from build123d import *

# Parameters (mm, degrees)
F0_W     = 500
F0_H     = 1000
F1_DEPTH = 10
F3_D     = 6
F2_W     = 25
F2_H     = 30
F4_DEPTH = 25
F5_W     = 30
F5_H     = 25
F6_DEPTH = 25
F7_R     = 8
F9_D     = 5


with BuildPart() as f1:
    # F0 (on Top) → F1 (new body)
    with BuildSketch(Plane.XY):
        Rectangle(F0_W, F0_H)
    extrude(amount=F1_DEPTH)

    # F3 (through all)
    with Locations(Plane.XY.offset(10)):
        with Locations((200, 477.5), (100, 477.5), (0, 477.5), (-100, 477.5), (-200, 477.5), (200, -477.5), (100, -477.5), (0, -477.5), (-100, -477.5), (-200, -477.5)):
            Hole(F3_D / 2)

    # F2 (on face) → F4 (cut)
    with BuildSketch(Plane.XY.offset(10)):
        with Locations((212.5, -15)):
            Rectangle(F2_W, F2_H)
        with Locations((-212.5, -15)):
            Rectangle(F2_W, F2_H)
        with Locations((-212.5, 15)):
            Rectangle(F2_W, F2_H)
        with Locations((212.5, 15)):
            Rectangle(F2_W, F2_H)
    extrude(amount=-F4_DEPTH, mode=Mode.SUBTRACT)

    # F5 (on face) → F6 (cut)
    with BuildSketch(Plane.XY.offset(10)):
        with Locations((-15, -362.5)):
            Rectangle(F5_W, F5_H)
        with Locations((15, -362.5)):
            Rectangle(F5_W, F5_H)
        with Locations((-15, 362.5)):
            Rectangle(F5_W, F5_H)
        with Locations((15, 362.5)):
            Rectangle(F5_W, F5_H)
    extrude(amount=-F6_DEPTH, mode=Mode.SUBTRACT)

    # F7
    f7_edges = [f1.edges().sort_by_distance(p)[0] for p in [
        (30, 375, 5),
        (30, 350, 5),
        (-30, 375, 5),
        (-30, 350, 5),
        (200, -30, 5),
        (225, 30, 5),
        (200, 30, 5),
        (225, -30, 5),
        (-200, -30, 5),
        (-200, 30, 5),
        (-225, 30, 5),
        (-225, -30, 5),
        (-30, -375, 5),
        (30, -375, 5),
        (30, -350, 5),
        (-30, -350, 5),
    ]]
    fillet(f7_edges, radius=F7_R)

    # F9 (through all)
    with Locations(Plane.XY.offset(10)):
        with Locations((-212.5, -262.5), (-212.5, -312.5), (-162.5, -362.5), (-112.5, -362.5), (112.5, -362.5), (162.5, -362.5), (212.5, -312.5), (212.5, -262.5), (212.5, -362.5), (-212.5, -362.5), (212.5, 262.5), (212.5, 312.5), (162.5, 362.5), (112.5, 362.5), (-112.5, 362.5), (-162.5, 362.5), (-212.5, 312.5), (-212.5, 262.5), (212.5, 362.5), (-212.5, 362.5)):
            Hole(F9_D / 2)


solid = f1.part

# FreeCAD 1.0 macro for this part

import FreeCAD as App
import Part
import Sketcher


def edges_at(feature, points):
    """Names of the edges that pass closest to the given points."""
    edges = feature.Shape.Edges
    near = lambda p: min(range(len(edges)), key=lambda i: edges[i].distToShape(Part.Vertex(*p))[0])
    return sorted({f"Edge{near(p) + 1}" for p in points})


def add_polygon(sketch, points):
    """Adds a closed chain of lines whose ends are joined by coincident constraints."""
    first, n = sketch.GeometryCount, len(points)
    for a, b in zip(points, points[1:] + points[:1]):
        sketch.addGeometry(Part.LineSegment(App.Vector(*a, 0), App.Vector(*b, 0)), False)
    for i in range(n):
        sketch.addConstraint(Sketcher.Constraint("Coincident", first + i, 2, first + (i + 1) % n, 1))

doc = App.newDocument("Part")
body = doc.addObject("PartDesign::Body", "Body")

sketch1 = body.newObject("Sketcher::SketchObject", "Sketch")
sketch1.AttachmentSupport = (doc.getObject("XY_Plane"), [""])
sketch1.MapMode = "FlatFace"
add_polygon(sketch1, [(-250, 500), (-250, -500), (250, -500), (250, 500)])
sketch1.addConstraint(Sketcher.Constraint("Vertical", 0))
sketch1.addConstraint(Sketcher.Constraint("Horizontal", 1))
sketch1.addConstraint(Sketcher.Constraint("Vertical", 2))
sketch1.addConstraint(Sketcher.Constraint("Horizontal", 3))
sketch1.addConstraint(Sketcher.Constraint("Symmetric", 0, 2, 2, 2, -1, 1))
sketch1.addConstraint(Sketcher.Constraint("DistanceX", 1, 1, 1, 2, 500.0))
sketch1.addConstraint(Sketcher.Constraint("DistanceY", 0, 2, 0, 1, 1000.0))
pad1 = body.newObject("PartDesign::Pad", "Pad")
pad1.Profile = sketch1
pad1.Length = 10

sketch2 = body.newObject("Sketcher::SketchObject", "Sketch001")
sketch2.AttachmentSupport = (doc.getObject("XY_Plane"), [""])
sketch2.MapMode = "FlatFace"
sketch2.AttachmentOffset = App.Placement(App.Vector(0, 0, 10), App.Rotation())
sketch2.addGeometry(Part.Circle(App.Vector(200, 477.5, 0), App.Vector(0, 0, 1), 3), False)
sketch2.addGeometry(Part.Circle(App.Vector(100, 477.5, 0), App.Vector(0, 0, 1), 3), False)
sketch2.addGeometry(Part.Circle(App.Vector(0, 477.5, 0), App.Vector(0, 0, 1), 3), False)
sketch2.addGeometry(Part.Circle(App.Vector(-100, 477.5, 0), App.Vector(0, 0, 1), 3), False)
sketch2.addGeometry(Part.Circle(App.Vector(-200, 477.5, 0), App.Vector(0, 0, 1), 3), False)
sketch2.addGeometry(Part.Circle(App.Vector(200, -477.5, 0), App.Vector(0, 0, 1), 3), False)
sketch2.addGeometry(Part.Circle(App.Vector(100, -477.5, 0), App.Vector(0, 0, 1), 3), False)
sketch2.addGeometry(Part.Circle(App.Vector(0, -477.5, 0), App.Vector(0, 0, 1), 3), False)
sketch2.addGeometry(Part.Circle(App.Vector(-100, -477.5, 0), App.Vector(0, 0, 1), 3), False)
sketch2.addGeometry(Part.Circle(App.Vector(-200, -477.5, 0), App.Vector(0, 0, 1), 3), False)
sketch2.addConstraint(Sketcher.Constraint("Equal", 0, 1))
sketch2.addConstraint(Sketcher.Constraint("Equal", 1, 2))
sketch2.addConstraint(Sketcher.Constraint("Equal", 2, 3))
sketch2.addConstraint(Sketcher.Constraint("Equal", 3, 4))
sketch2.addConstraint(Sketcher.Constraint("Equal", 4, 5))
sketch2.addConstraint(Sketcher.Constraint("Equal", 5, 6))
sketch2.addConstraint(Sketcher.Constraint("Equal", 6, 7))
sketch2.addConstraint(Sketcher.Constraint("Equal", 7, 8))
sketch2.addConstraint(Sketcher.Constraint("Equal", 8, 9))
sketch2.addConstraint(Sketcher.Constraint("Symmetric", 4, 3, 5, 3, -1, 1))
sketch2.addConstraint(Sketcher.Constraint("Symmetric", 3, 3, 6, 3, -1, 1))
sketch2.addConstraint(Sketcher.Constraint("Symmetric", 2, 3, 7, 3, -1, 1))
sketch2.addConstraint(Sketcher.Constraint("Symmetric", 1, 3, 8, 3, -1, 1))
sketch2.addConstraint(Sketcher.Constraint("Symmetric", 0, 3, 9, 3, -1, 1))
sketch2.addConstraint(Sketcher.Constraint("Symmetric", 1, 3, 3, 3, -2))
sketch2.addConstraint(Sketcher.Constraint("Symmetric", 0, 3, 4, 3, -2))
sketch2.addConstraint(Sketcher.Constraint("PointOnObject", 2, 3, -2))
sketch2.addConstraint(Sketcher.Constraint("Horizontal", 0, 3, 1, 3))
sketch2.addConstraint(Sketcher.Constraint("Horizontal", 1, 3, 2, 3))
sketch2.addConstraint(Sketcher.Constraint("Diameter", 0, 6.0))
sketch2.addConstraint(Sketcher.Constraint("DistanceX", -1, 1, 0, 3, 200.0))
sketch2.addConstraint(Sketcher.Constraint("DistanceX", -1, 1, 1, 3, 100.0))
sketch2.addConstraint(Sketcher.Constraint("DistanceY", 5, 3, 0, 3, 955.0))
doc.recompute()
hole = body.newObject("PartDesign::Hole", "Hole")
hole.Profile = sketch2
hole.ThreadType = "None"
hole.Diameter = 6
hole.DepthType = "ThroughAll"

sketch3 = body.newObject("Sketcher::SketchObject", "Sketch002")
sketch3.AttachmentSupport = (doc.getObject("XY_Plane"), [""])
sketch3.MapMode = "FlatFace"
sketch3.AttachmentOffset = App.Placement(App.Vector(0, 0, 10), App.Rotation())
add_polygon(sketch3, [(200, -30), (225, -30), (225, 30), (200, 30)])
add_polygon(sketch3, [(-225, -30), (-200, -30), (-200, 30), (-225, 30)])
sketch3.addConstraint(Sketcher.Constraint("Horizontal", 0))
sketch3.addConstraint(Sketcher.Constraint("Vertical", 1))
sketch3.addConstraint(Sketcher.Constraint("Horizontal", 2))
sketch3.addConstraint(Sketcher.Constraint("Vertical", 3))
sketch3.addConstraint(Sketcher.Constraint("Horizontal", 4))
sketch3.addConstraint(Sketcher.Constraint("Vertical", 5))
sketch3.addConstraint(Sketcher.Constraint("Horizontal", 6))
sketch3.addConstraint(Sketcher.Constraint("Vertical", 7))
sketch3.addConstraint(Sketcher.Constraint("Symmetric", 2, 2, 4, 2, -1, 1))
sketch3.addConstraint(Sketcher.Constraint("Symmetric", 0, 2, 6, 2, -1, 1))
sketch3.addConstraint(Sketcher.Constraint("Horizontal", 3, 2, 4, 2))
sketch3.addConstraint(Sketcher.Constraint("DistanceX", 0, 1, 0, 2, 25.0))
sketch3.addConstraint(Sketcher.Constraint("DistanceY", 1, 1, 1, 2, 60.0))
sketch3.addConstraint(Sketcher.Constraint("DistanceX", -1, 1, 0, 2, 225.0))
pocket1 = body.newObject("PartDesign::Pocket", "Pocket")
pocket1.Profile = sketch3
pocket1.Length = 25

sketch4 = body.newObject("Sketcher::SketchObject", "Sketch003")
sketch4.AttachmentSupport = (doc.getObject("XY_Plane"), [""])
sketch4.MapMode = "FlatFace"
sketch4.AttachmentOffset = App.Placement(App.Vector(0, 0, 10), App.Rotation())
add_polygon(sketch4, [(-30, -350), (-30, -375), (30, -375), (30, -350)])
add_polygon(sketch4, [(-30, 375), (-30, 350), (30, 350), (30, 375)])
sketch4.addConstraint(Sketcher.Constraint("Vertical", 0))
sketch4.addConstraint(Sketcher.Constraint("Horizontal", 1))
sketch4.addConstraint(Sketcher.Constraint("Vertical", 2))
sketch4.addConstraint(Sketcher.Constraint("Horizontal", 3))
sketch4.addConstraint(Sketcher.Constraint("Vertical", 4))
sketch4.addConstraint(Sketcher.Constraint("Horizontal", 5))
sketch4.addConstraint(Sketcher.Constraint("Vertical", 6))
sketch4.addConstraint(Sketcher.Constraint("Horizontal", 7))
sketch4.addConstraint(Sketcher.Constraint("Symmetric", 2, 2, 4, 2, -1, 1))
sketch4.addConstraint(Sketcher.Constraint("Symmetric", 0, 2, 6, 2, -1, 1))
sketch4.addConstraint(Sketcher.Constraint("Vertical", 3, 2, 4, 2))
sketch4.addConstraint(Sketcher.Constraint("DistanceX", 1, 1, 1, 2, 60.0))
sketch4.addConstraint(Sketcher.Constraint("DistanceY", 0, 2, 0, 1, 25.0))
sketch4.addConstraint(Sketcher.Constraint("DistanceY", 0, 2, -1, 1, 375.0))
pocket2 = body.newObject("PartDesign::Pocket", "Pocket001")
pocket2.Profile = sketch4
pocket2.Length = 25
doc.recompute()

fillet = body.newObject("PartDesign::Fillet", "Fillet")
fillet.Base = (pocket2, edges_at(pocket2, [
    (30, 375, 5),
    (30, 350, 5),
    (-30, 375, 5),
    (-30, 350, 5),
    (200, -30, 5),
    (225, 30, 5),
    (200, 30, 5),
    (225, -30, 5),
    (-200, -30, 5),
    (-200, 30, 5),
    (-225, 30, 5),
    (-225, -30, 5),
    (-30, -375, 5),
    (30, -375, 5),
    (30, -350, 5),
    (-30, -350, 5),
]))
fillet.Radius = 8

sketch5 = body.newObject("Sketcher::SketchObject", "Sketch004")
sketch5.AttachmentSupport = (doc.getObject("XY_Plane"), [""])
sketch5.MapMode = "FlatFace"
sketch5.AttachmentOffset = App.Placement(App.Vector(0, 0, 10), App.Rotation())
sketch5.addGeometry(Part.Circle(App.Vector(-212.5, -262.5, 0), App.Vector(0, 0, 1), 2.5), False)
sketch5.addGeometry(Part.Circle(App.Vector(-212.5, -312.5, 0), App.Vector(0, 0, 1), 2.5), False)
sketch5.addGeometry(Part.Circle(App.Vector(-162.5, -362.5, 0), App.Vector(0, 0, 1), 2.5), False)
sketch5.addGeometry(Part.Circle(App.Vector(-112.5, -362.5, 0), App.Vector(0, 0, 1), 2.5), False)
sketch5.addGeometry(Part.Circle(App.Vector(112.5, -362.5, 0), App.Vector(0, 0, 1), 2.5), False)
sketch5.addGeometry(Part.Circle(App.Vector(162.5, -362.5, 0), App.Vector(0, 0, 1), 2.5), False)
sketch5.addGeometry(Part.Circle(App.Vector(212.5, -312.5, 0), App.Vector(0, 0, 1), 2.5), False)
sketch5.addGeometry(Part.Circle(App.Vector(212.5, -262.5, 0), App.Vector(0, 0, 1), 2.5), False)
sketch5.addGeometry(Part.Circle(App.Vector(212.5, -362.5, 0), App.Vector(0, 0, 1), 2.5), False)
sketch5.addGeometry(Part.Circle(App.Vector(-212.5, -362.5, 0), App.Vector(0, 0, 1), 2.5), False)
sketch5.addGeometry(Part.Circle(App.Vector(212.5, 262.5, 0), App.Vector(0, 0, 1), 2.5), False)
sketch5.addGeometry(Part.Circle(App.Vector(212.5, 312.5, 0), App.Vector(0, 0, 1), 2.5), False)
sketch5.addGeometry(Part.Circle(App.Vector(162.5, 362.5, 0), App.Vector(0, 0, 1), 2.5), False)
sketch5.addGeometry(Part.Circle(App.Vector(112.5, 362.5, 0), App.Vector(0, 0, 1), 2.5), False)
sketch5.addGeometry(Part.Circle(App.Vector(-112.5, 362.5, 0), App.Vector(0, 0, 1), 2.5), False)
sketch5.addGeometry(Part.Circle(App.Vector(-162.5, 362.5, 0), App.Vector(0, 0, 1), 2.5), False)
sketch5.addGeometry(Part.Circle(App.Vector(-212.5, 312.5, 0), App.Vector(0, 0, 1), 2.5), False)
sketch5.addGeometry(Part.Circle(App.Vector(-212.5, 262.5, 0), App.Vector(0, 0, 1), 2.5), False)
sketch5.addGeometry(Part.Circle(App.Vector(212.5, 362.5, 0), App.Vector(0, 0, 1), 2.5), False)
sketch5.addGeometry(Part.Circle(App.Vector(-212.5, 362.5, 0), App.Vector(0, 0, 1), 2.5), False)
sketch5.addConstraint(Sketcher.Constraint("Equal", 0, 1))
sketch5.addConstraint(Sketcher.Constraint("Equal", 1, 2))
sketch5.addConstraint(Sketcher.Constraint("Equal", 2, 3))
sketch5.addConstraint(Sketcher.Constraint("Equal", 3, 4))
sketch5.addConstraint(Sketcher.Constraint("Equal", 4, 5))
sketch5.addConstraint(Sketcher.Constraint("Equal", 5, 6))
sketch5.addConstraint(Sketcher.Constraint("Equal", 6, 7))
sketch5.addConstraint(Sketcher.Constraint("Equal", 7, 8))
sketch5.addConstraint(Sketcher.Constraint("Equal", 8, 9))
sketch5.addConstraint(Sketcher.Constraint("Equal", 9, 10))
sketch5.addConstraint(Sketcher.Constraint("Equal", 10, 11))
sketch5.addConstraint(Sketcher.Constraint("Equal", 11, 12))
sketch5.addConstraint(Sketcher.Constraint("Equal", 12, 13))
sketch5.addConstraint(Sketcher.Constraint("Equal", 13, 14))
sketch5.addConstraint(Sketcher.Constraint("Equal", 14, 15))
sketch5.addConstraint(Sketcher.Constraint("Equal", 15, 16))
sketch5.addConstraint(Sketcher.Constraint("Equal", 16, 17))
sketch5.addConstraint(Sketcher.Constraint("Equal", 17, 18))
sketch5.addConstraint(Sketcher.Constraint("Equal", 18, 19))
sketch5.addConstraint(Sketcher.Constraint("Symmetric", 0, 3, 10, 3, -1, 1))
sketch5.addConstraint(Sketcher.Constraint("Symmetric", 1, 3, 11, 3, -1, 1))
sketch5.addConstraint(Sketcher.Constraint("Symmetric", 2, 3, 12, 3, -1, 1))
sketch5.addConstraint(Sketcher.Constraint("Symmetric", 3, 3, 13, 3, -1, 1))
sketch5.addConstraint(Sketcher.Constraint("Symmetric", 4, 3, 14, 3, -1, 1))
sketch5.addConstraint(Sketcher.Constraint("Symmetric", 5, 3, 15, 3, -1, 1))
sketch5.addConstraint(Sketcher.Constraint("Symmetric", 6, 3, 16, 3, -1, 1))
sketch5.addConstraint(Sketcher.Constraint("Symmetric", 7, 3, 17, 3, -1, 1))
sketch5.addConstraint(Sketcher.Constraint("Symmetric", 9, 3, 18, 3, -1, 1))
sketch5.addConstraint(Sketcher.Constraint("Symmetric", 8, 3, 19, 3, -1, 1))
sketch5.addConstraint(Sketcher.Constraint("Symmetric", 3, 3, 4, 3, -2))
sketch5.addConstraint(Sketcher.Constraint("Symmetric", 2, 3, 5, 3, -2))
sketch5.addConstraint(Sketcher.Constraint("Symmetric", 1, 3, 6, 3, -2))
sketch5.addConstraint(Sketcher.Constraint("Symmetric", 0, 3, 7, 3, -2))
sketch5.addConstraint(Sketcher.Constraint("Symmetric", 8, 3, 9, 3, -2))
sketch5.addConstraint(Sketcher.Constraint("Horizontal", 2, 3, 3, 3))
sketch5.addConstraint(Sketcher.Constraint("Horizontal", 5, 3, 8, 3))
sketch5.addConstraint(Sketcher.Constraint("Vertical", 0, 3, 1, 3))
sketch5.addConstraint(Sketcher.Constraint("Vertical", 7, 3, 8, 3))
sketch5.addConstraint(Sketcher.Constraint("Diameter", 0, 5.0))
sketch5.addConstraint(Sketcher.Constraint("DistanceY", 1, 3, 0, 3, 50.0))
sketch5.addConstraint(Sketcher.Constraint("DistanceX", 1, 3, 2, 3, 50.0))
sketch5.addConstraint(Sketcher.Constraint("DistanceY", 2, 3, 1, 3, 50.0))
sketch5.addConstraint(Sketcher.Constraint("DistanceX", 2, 3, 3, 3, 50.0))
sketch5.addConstraint(Sketcher.Constraint("DistanceX", 3, 3, 4, 3, 225.0))
sketch5.addConstraint(Sketcher.Constraint("DistanceY", 7, 3, 10, 3, 525.0))
doc.recompute()
hole2 = body.newObject("PartDesign::Hole", "Hole001")
hole2.Profile = sketch5
hole2.ThreadType = "None"
hole2.Diameter = 5
hole2.DepthType = "ThroughAll"

doc.recompute()
